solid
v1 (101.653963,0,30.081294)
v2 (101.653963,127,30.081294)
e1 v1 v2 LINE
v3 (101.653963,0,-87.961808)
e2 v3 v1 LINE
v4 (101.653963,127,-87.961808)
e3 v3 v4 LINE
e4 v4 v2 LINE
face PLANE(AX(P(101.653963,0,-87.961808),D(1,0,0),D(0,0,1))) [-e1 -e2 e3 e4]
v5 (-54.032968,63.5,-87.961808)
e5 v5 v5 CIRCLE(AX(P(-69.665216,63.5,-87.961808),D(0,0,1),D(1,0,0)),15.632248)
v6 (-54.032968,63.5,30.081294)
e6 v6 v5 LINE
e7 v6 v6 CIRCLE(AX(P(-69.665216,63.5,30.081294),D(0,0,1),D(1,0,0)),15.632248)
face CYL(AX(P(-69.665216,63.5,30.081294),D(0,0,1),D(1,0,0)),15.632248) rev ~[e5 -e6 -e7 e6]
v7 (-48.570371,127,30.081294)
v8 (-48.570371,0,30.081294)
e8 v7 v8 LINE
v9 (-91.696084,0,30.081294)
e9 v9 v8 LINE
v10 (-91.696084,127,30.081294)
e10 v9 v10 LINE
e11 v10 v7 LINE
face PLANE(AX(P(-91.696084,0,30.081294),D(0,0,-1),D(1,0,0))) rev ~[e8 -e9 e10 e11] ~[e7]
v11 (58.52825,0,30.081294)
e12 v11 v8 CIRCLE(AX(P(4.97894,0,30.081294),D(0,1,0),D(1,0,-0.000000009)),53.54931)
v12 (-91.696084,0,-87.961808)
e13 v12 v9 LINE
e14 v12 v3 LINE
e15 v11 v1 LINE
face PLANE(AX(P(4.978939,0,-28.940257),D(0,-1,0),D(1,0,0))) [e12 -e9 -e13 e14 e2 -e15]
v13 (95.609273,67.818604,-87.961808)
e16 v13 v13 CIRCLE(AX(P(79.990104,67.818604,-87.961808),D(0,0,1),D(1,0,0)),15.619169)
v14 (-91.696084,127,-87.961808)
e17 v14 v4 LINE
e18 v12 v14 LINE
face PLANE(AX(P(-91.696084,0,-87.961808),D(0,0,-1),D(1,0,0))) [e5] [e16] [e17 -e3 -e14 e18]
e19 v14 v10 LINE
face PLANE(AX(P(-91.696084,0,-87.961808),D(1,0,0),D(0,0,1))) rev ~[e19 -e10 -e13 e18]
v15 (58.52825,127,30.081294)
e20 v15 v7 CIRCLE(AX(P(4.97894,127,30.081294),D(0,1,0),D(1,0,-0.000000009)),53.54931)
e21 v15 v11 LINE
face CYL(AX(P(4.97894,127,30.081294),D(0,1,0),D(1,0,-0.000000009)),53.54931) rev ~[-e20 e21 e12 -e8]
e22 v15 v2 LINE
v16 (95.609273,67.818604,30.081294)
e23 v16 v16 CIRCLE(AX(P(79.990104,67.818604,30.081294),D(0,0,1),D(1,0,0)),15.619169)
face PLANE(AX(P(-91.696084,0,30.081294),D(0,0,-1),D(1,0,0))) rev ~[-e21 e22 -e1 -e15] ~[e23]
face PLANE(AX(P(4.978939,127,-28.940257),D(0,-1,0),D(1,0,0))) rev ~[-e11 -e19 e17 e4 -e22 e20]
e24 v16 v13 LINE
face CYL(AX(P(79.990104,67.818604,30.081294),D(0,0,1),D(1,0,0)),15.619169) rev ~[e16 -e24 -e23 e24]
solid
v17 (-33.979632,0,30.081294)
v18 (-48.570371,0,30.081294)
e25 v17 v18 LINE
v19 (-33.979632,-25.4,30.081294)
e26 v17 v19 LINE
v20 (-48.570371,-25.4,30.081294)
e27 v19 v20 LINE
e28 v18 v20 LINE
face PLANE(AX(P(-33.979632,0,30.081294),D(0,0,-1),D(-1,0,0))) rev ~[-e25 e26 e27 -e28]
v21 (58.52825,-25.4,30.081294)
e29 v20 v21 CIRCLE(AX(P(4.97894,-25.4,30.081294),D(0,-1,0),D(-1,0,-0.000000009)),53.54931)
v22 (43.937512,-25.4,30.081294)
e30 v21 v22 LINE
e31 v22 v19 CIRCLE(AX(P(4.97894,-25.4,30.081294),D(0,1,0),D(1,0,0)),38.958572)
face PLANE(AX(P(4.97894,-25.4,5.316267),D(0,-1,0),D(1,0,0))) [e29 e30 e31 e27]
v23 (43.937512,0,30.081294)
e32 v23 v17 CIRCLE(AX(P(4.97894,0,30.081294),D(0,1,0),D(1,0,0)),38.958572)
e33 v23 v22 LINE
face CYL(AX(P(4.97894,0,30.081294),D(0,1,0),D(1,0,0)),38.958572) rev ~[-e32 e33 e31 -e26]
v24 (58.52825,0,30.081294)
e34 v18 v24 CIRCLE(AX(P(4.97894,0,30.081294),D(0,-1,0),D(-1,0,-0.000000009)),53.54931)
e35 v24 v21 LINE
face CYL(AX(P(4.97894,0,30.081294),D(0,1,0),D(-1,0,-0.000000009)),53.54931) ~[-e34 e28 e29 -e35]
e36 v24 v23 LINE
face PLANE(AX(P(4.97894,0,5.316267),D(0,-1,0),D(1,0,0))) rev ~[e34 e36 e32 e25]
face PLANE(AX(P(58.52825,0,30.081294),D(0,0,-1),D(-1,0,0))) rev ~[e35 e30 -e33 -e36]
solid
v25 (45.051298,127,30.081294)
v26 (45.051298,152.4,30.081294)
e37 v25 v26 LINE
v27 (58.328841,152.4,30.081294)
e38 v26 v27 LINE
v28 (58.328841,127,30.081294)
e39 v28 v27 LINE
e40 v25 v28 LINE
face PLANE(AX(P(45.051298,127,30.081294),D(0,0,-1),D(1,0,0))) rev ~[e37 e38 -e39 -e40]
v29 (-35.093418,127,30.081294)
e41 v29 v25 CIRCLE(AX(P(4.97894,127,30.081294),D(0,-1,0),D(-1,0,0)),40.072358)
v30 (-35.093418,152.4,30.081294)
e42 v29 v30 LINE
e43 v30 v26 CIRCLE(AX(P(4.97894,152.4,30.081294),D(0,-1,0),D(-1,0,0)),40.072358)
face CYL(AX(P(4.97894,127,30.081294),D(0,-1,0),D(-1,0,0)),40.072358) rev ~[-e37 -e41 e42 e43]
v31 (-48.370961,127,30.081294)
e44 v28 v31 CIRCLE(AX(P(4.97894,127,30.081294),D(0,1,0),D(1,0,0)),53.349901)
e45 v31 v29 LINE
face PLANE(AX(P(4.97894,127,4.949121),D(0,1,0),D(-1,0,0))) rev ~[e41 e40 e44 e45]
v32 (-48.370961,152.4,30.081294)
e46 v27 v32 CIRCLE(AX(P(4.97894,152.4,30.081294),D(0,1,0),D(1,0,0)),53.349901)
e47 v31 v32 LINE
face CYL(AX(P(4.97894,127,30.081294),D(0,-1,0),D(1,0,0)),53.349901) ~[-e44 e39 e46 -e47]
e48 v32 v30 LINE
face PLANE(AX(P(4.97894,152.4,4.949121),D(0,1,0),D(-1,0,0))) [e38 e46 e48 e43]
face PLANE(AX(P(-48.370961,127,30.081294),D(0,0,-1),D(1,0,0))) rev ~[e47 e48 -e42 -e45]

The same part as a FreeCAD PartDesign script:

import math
import FreeCAD as App
import Part
import Sketcher
Q = App.Units.Quantity


def add_polygon(sketch, points):
    """Adds a closed chain of lines whose ends are joined by coincident constraints."""
    first, n = sketch.GeometryCount, len(points)
    for a, b in zip(points, points[1:] + points[:1]):
        sketch.addGeometry(Part.LineSegment(App.Vector(*a, 0), App.Vector(*b, 0)), False)
    for i in range(n):
        sketch.addConstraint(Sketcher.Constraint("Coincident", first + i, 2, first + (i + 1) % n, 1))

doc = App.newDocument("Part")
body = doc.addObject("PartDesign::Body", "Body")

sketch1 = body.newObject("Sketcher::SketchObject", "Sketch")
sketch1.AttachmentSupport = (doc.getObject("XZ_Plane"), [""])
sketch1.MapMode = "FlatFace"
add_polygon(sketch1, [(-92, 30), (-92, -88), (102, -88), (102, 30)])
sketch1.addConstraint([
    Sketcher.Constraint("Vertical", 0),
    Sketcher.Constraint("Horizontal", 1),
    Sketcher.Constraint("Vertical", 2),
    Sketcher.Constraint("Horizontal", 3),
    Sketcher.Constraint("DistanceX", 1, 1, 1, 2, 193.350047),
    Sketcher.Constraint("DistanceY", 0, 2, 0, 1, 118.043102),
    Sketcher.Constraint("DistanceY", 0, 2, -1, 1, 87.961808),
    Sketcher.Constraint("DistanceX", 0, 2, -1, 1, 91.696084),
])
pad1 = body.newObject("PartDesign::Pad", "Pad")
pad1.Profile = sketch1
pad1.Length = Q("5 in")
pad1.Reversed = True

sketch2 = body.newObject("Sketcher::SketchObject", "Sketch001")
sketch2.AttachmentSupport = (doc.getObject("XZ_Plane"), [""])
sketch2.MapMode = "FlatFace"
sketch2.AttachmentOffset = App.Placement(App.Vector(0, 0, -5 * 25.4), App.Rotation())
sketch2.addGeometry([
    Part.LineSegment(App.Vector(-49, 30, 0), App.Vector(59, 30, 0)),
    Part.ArcOfCircle(Part.Circle(App.Vector(5, 30, 0), App.Vector(0, 0, 1), 54), math.radians(-180), math.radians(0)),
], False)
sketch2.addConstraint([
    Sketcher.Constraint("Coincident", 0, 1, 1, 1),
    Sketcher.Constraint("Coincident", 1, 2, 0, 2),
    Sketcher.Constraint("Horizontal", 0),
    Sketcher.Constraint("Horizontal", 1, 3, 0, 1),
    Sketcher.Constraint("Radius", 1, 53.54931),
    Sketcher.Constraint("DistanceX", -1, 1, 1, 3, 4.97894),
    Sketcher.Constraint("DistanceY", -1, 1, 1, 3, 30.081294),
])
pocket1 = body.newObject("PartDesign::Pocket", "Pocket")
pocket1.Profile = sketch2
pocket1.Length = Q("5 in")
pocket1.Reversed = True

sketch3 = body.newObject("Sketcher::SketchObject", "Sketch002")
sketch3.AttachmentSupport = (doc.getObject("XY_Plane"), [""])
sketch3.MapMode = "FlatFace"
sketch3.AttachmentOffset = App.Placement(App.Vector(0, 0, 30.081294), App.Rotation())
sketch3.addGeometry([
    Part.Circle(App.Vector(-70, 64, 0), App.Vector(0, 0, 1), 16),
    Part.Circle(App.Vector(80, 68, 0), App.Vector(0, 0, 1), 16),
], False)
sketch3.addConstraint([
    Sketcher.Constraint("DistanceY", -1, 1, 0, 3, Q("2.5 in")),
    Sketcher.Constraint("Diameter", 0, 31.264496),
    Sketcher.Constraint("Diameter", 1, 31.238338),
    Sketcher.Constraint("DistanceX", 0, 3, 1, 3, 149.65532),
    Sketcher.Constraint("DistanceX", 0, 3, -1, 1, 69.665216),
    Sketcher.Constraint("DistanceY", -1, 1, 1, 3, 67.818604),
])
pocket2 = body.newObject("PartDesign::Pocket", "Pocket001")
pocket2.Profile = sketch3
pocket2.Length = Q("10 in")
body2 = doc.addObject("PartDesign::Body", "Body001")

sketch4 = body2.newObject("Sketcher::SketchObject", "Sketch003")
sketch4.AttachmentSupport = (doc.getObject("XZ_Plane001"), [""])
sketch4.MapMode = "FlatFace"
sketch4.AttachmentOffset = App.Placement(App.Vector(0, 0, -5 * 25.4), App.Rotation())
sketch4.addGeometry([
    Part.LineSegment(App.Vector(45, 30, 0), App.Vector(58, 30, 0)),
    Part.ArcOfCircle(Part.Circle(App.Vector(5, 30, 0), App.Vector(0, 0, 1), 53), math.radians(180), math.radians(360)),
    Part.LineSegment(App.Vector(-48, 30, 0), App.Vector(-35, 30, 0)),
    Part.ArcOfCircle(Part.Circle(App.Vector(5, 30, 0), App.Vector(0, 0, 1), 40), math.radians(180), math.radians(360)),
], False)
sketch4.addConstraint([
    Sketcher.Constraint("Coincident", 0, 2, 1, 2),
    Sketcher.Constraint("Coincident", 1, 1, 2, 1),
    Sketcher.Constraint("Coincident", 2, 2, 3, 1),
    Sketcher.Constraint("Coincident", 3, 2, 0, 1),
    Sketcher.Constraint("Horizontal", 0),
    Sketcher.Constraint("Horizontal", 2),
    Sketcher.Constraint("Coincident", 3, 3, 1, 3),
    Sketcher.Constraint("Horizontal", 3, 3, 0, 2),
    Sketcher.Constraint("Horizontal", 0, 2, 1, 1),
    Sketcher.Constraint("Radius", 1, 53.349901),
    Sketcher.Constraint("Radius", 3, 40.072358),
    Sketcher.Constraint("DistanceX", -1, 1, 3, 2, 45.051298),
    Sketcher.Constraint("DistanceY", -1, 1, 1, 3, 30.081294),
])
pad2 = body2.newObject("PartDesign::Pad", "Pad001")
pad2.Profile = sketch4
pad2.Length = Q("1 in")
pad2.Reversed = True
body3 = doc.addObject("PartDesign::Body", "Body002")

sketch5 = body3.newObject("Sketcher::SketchObject", "Sketch004")
sketch5.AttachmentSupport = (doc.getObject("XZ_Plane002"), [""])
sketch5.MapMode = "FlatFace"
sketch5.addGeometry([
    Part.ArcOfCircle(Part.Circle(App.Vector(5, 30, 0), App.Vector(0, 0, 1), 39), math.radians(180), math.radians(360)),
    Part.LineSegment(App.Vector(-34, 30, 0), App.Vector(-49, 30, 0)),
    Part.ArcOfCircle(Part.Circle(App.Vector(5, 30, 0), App.Vector(0, 0, 1), 54), math.radians(-180), math.radians(0)),
    Part.LineSegment(App.Vector(59, 30, 0), App.Vector(44, 30, 0)),
], False)
sketch5.addConstraint([
    Sketcher.Constraint("Coincident", 0, 1, 1, 1),
    Sketcher.Constraint("Coincident", 1, 2, 2, 1),
    Sketcher.Constraint("Coincident", 2, 2, 3, 1),
    Sketcher.Constraint("Coincident", 3, 2, 0, 2),
    Sketcher.Constraint("Horizontal", 1),
    Sketcher.Constraint("Horizontal", 3),
    Sketcher.Constraint("Coincident", 2, 3, 0, 3),
    Sketcher.Constraint("Horizontal", 2, 3, 0, 1),
    Sketcher.Constraint("Horizontal", 1, 2, 2, 2),
    Sketcher.Constraint("Radius", 0, 38.958572),
    Sketcher.Constraint("Radius", 2, 53.54931),
    Sketcher.Constraint("DistanceX", -1, 1, 0, 3, 4.97894),
    Sketcher.Constraint("DistanceY", -1, 1, 0, 3, 30.081294),
])
pad3 = body3.newObject("PartDesign::Pad", "Pad002")
pad3.Profile = sketch5
pad3.Length = Q("1 in")

doc.recompute()
